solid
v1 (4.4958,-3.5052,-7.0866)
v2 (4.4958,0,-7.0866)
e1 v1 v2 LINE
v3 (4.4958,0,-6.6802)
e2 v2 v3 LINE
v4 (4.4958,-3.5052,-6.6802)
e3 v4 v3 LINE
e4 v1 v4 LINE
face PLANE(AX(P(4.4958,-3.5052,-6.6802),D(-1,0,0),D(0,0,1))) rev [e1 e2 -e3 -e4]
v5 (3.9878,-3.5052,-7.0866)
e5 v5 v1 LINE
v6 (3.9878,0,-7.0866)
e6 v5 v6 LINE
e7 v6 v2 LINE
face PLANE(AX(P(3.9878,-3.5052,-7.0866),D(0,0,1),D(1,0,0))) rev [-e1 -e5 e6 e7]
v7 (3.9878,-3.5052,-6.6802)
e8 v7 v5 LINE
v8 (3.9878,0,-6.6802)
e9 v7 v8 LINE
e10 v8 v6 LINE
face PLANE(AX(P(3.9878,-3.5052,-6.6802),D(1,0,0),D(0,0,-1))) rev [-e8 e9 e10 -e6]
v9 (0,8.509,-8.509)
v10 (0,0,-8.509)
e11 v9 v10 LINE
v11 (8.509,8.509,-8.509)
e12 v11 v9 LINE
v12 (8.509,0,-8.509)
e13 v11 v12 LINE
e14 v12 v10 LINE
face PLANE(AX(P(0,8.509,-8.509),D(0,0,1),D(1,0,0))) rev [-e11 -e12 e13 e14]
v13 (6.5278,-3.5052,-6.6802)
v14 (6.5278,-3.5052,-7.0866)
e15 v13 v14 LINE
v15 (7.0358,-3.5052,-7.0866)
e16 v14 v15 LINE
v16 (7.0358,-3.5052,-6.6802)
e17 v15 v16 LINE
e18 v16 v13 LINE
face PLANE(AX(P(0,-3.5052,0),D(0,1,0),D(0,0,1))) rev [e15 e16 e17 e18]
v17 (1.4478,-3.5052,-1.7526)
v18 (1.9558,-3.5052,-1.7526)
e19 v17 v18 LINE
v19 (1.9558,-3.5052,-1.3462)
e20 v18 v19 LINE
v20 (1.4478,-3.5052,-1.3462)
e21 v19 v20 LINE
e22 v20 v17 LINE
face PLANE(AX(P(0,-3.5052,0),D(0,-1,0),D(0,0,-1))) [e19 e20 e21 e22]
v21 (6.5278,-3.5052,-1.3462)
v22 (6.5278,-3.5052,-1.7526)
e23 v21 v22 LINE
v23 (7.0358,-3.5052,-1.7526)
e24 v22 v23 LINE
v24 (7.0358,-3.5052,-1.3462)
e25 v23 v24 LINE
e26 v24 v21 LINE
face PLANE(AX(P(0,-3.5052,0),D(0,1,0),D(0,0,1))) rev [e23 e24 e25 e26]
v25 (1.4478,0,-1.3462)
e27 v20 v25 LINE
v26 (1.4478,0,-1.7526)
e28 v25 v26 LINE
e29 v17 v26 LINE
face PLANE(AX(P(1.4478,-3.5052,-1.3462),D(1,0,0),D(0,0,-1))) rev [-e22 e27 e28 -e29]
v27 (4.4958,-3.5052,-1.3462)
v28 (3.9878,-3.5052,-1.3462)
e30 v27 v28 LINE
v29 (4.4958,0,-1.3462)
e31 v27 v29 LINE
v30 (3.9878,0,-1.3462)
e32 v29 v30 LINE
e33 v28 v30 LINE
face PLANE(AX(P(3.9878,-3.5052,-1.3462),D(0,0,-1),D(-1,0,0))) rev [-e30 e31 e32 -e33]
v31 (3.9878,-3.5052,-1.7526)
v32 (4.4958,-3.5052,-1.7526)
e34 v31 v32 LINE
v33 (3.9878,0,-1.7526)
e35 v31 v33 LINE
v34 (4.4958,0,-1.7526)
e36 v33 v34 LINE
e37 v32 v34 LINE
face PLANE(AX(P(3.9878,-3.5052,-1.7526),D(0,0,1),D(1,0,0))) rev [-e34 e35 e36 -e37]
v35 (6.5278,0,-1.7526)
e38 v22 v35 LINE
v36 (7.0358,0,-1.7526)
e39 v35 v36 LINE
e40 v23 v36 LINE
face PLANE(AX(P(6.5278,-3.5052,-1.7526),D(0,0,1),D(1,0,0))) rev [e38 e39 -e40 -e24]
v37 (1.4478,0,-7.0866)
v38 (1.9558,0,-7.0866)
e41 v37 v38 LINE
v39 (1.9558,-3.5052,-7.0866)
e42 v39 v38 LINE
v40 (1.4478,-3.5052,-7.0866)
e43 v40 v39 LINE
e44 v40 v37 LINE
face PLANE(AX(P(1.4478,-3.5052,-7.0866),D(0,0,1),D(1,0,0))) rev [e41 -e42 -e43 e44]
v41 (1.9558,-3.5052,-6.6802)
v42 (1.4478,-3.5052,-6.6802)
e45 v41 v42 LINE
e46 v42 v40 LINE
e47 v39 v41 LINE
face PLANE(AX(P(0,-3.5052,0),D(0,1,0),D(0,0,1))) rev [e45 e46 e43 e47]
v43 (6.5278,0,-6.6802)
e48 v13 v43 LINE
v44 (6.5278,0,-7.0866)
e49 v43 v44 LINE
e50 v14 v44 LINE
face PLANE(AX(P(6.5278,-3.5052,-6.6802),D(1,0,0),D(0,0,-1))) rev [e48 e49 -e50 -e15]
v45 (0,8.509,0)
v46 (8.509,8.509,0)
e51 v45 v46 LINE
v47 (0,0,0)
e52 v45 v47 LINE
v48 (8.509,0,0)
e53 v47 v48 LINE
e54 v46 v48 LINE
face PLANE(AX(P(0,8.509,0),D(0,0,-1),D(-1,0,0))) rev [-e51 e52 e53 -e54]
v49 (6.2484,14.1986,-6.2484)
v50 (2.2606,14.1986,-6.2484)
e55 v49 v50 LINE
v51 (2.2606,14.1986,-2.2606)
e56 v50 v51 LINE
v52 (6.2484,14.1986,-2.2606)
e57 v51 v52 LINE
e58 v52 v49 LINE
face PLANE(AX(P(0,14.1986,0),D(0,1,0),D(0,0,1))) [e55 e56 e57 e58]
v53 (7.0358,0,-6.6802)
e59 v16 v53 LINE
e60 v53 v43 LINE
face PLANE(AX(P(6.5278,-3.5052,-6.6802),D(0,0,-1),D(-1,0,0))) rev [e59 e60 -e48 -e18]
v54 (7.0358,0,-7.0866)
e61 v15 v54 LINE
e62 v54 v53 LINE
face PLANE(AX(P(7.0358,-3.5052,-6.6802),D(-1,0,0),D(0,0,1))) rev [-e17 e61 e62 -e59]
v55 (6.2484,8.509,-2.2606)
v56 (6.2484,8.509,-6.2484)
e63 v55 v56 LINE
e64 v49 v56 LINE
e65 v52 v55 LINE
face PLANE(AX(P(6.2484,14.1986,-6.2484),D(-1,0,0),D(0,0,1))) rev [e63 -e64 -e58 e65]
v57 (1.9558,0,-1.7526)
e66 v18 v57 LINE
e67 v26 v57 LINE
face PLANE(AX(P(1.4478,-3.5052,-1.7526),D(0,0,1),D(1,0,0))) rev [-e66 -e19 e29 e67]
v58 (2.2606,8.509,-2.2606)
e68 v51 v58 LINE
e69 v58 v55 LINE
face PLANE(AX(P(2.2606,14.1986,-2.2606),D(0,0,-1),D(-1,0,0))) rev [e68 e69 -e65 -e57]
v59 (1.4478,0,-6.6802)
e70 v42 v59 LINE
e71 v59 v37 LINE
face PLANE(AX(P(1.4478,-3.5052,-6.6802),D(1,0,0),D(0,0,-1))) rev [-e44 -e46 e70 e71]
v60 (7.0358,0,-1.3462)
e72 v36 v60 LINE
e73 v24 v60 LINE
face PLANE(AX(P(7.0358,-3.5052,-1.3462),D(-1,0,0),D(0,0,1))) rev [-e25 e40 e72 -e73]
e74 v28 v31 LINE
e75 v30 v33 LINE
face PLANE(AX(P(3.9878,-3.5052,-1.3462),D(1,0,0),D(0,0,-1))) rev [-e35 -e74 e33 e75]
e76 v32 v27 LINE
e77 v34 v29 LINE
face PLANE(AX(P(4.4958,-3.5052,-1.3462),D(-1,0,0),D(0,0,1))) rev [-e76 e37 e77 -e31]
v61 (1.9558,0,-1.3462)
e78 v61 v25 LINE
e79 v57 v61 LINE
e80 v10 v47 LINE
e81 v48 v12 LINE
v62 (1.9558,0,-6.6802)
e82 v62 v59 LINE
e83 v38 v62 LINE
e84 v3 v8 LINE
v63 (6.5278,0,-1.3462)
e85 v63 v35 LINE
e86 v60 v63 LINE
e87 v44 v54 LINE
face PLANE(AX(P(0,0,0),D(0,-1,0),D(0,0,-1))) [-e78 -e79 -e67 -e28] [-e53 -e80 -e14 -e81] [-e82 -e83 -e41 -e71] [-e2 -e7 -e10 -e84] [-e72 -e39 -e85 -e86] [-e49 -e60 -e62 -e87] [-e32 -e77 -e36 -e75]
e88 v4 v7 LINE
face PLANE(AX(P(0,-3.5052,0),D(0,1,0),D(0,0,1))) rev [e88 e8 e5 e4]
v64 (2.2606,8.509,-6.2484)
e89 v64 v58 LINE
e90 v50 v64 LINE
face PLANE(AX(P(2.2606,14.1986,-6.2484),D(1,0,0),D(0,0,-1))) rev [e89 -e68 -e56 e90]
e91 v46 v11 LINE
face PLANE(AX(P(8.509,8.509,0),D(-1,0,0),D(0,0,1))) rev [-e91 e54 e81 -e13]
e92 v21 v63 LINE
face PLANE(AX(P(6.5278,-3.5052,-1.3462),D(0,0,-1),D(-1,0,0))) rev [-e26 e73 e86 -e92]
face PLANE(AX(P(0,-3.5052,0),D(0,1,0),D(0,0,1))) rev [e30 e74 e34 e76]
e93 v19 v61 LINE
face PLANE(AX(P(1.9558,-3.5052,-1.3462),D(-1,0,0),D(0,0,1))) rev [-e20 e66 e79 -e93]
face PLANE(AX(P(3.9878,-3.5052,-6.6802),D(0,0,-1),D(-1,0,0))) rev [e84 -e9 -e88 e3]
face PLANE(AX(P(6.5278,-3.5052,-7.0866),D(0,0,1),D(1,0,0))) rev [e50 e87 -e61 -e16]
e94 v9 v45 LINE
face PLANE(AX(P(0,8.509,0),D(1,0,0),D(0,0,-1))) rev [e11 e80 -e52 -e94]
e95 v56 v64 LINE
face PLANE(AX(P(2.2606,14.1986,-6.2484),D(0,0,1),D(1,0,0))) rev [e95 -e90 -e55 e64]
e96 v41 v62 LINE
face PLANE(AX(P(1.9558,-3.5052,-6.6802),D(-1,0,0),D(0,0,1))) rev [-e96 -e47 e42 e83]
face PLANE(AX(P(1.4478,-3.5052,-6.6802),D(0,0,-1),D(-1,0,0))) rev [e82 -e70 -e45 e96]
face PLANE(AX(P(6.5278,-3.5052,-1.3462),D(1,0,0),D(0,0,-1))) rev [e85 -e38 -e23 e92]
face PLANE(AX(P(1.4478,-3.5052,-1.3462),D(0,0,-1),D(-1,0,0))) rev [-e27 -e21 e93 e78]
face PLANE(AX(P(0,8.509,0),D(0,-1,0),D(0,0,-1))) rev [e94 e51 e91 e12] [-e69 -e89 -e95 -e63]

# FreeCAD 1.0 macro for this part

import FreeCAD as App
import Part
import Sketcher
Q = App.Units.Quantity

doc = App.newDocument("Part")
body = doc.addObject("PartDesign::Body", "Body")

sketch1 = body.newObject("Sketcher::SketchObject", "Sketch")
sketch1.AttachmentSupport = (doc.getObject("XZ_Plane"), [""])
sketch1.MapMode = "FlatFace"
sketch1.addGeometry(Part.LineSegment(App.Vector(0, -9, 0), App.Vector(0, 0, 0)), False)
sketch1.addGeometry(Part.LineSegment(App.Vector(0, 0, 0), App.Vector(9, 0, 0)), False)
sketch1.addGeometry(Part.LineSegment(App.Vector(9, 0, 0), App.Vector(9, -9, 0)), False)
sketch1.addGeometry(Part.LineSegment(App.Vector(9, -9, 0), App.Vector(0, -9, 0)), False)
sketch1.addConstraint(Sketcher.Constraint("Coincident", 0, 2, 1, 1))
sketch1.addConstraint(Sketcher.Constraint("Coincident", 1, 2, 2, 1))
sketch1.addConstraint(Sketcher.Constraint("Coincident", 2, 2, 3, 1))
sketch1.addConstraint(Sketcher.Constraint("Coincident", 3, 2, 0, 1))
sketch1.addConstraint(Sketcher.Constraint("Vertical", 0))
sketch1.addConstraint(Sketcher.Constraint("Horizontal", 1))
sketch1.addConstraint(Sketcher.Constraint("Vertical", 2))
sketch1.addConstraint(Sketcher.Constraint("Horizontal", 3))
sketch1.addConstraint(Sketcher.Constraint("Coincident", 0, 2, -1, 1))
sketch1.addConstraint(Sketcher.Constraint("Equal", 3, 0))
sketch1.addConstraint(Sketcher.Constraint("DistanceX", 1, 1, 1, 2, Q("0.335 in")))
pad1 = body.newObject("PartDesign::Pad", "Pad")
pad1.Profile = sketch1
pad1.Length = Q("0.335 in")
pad1.Reversed = True

sketch2 = body.newObject("Sketcher::SketchObject", "Sketch001")
sketch2.AttachmentSupport = (doc.getObject("XZ_Plane"), [""])
sketch2.MapMode = "FlatFace"
sketch2.AttachmentOffset = App.Placement(App.Vector(0, 0, -0.335 * 25.4), App.Rotation())
sketch2.addGeometry(Part.LineSegment(App.Vector(2.3, -6.2, 0), App.Vector(2.3, -2.3, 0)), False)
sketch2.addGeometry(Part.LineSegment(App.Vector(2.3, -2.3, 0), App.Vector(6.2, -2.3, 0)), False)
sketch2.addGeometry(Part.LineSegment(App.Vector(6.2, -2.3, 0), App.Vector(6.2, -6.2, 0)), False)
sketch2.addGeometry(Part.LineSegment(App.Vector(6.2, -6.2, 0), App.Vector(2.3, -6.2, 0)), False)
sketch2.addConstraint(Sketcher.Constraint("Coincident", 0, 2, 1, 1))
sketch2.addConstraint(Sketcher.Constraint("Coincident", 1, 2, 2, 1))
sketch2.addConstraint(Sketcher.Constraint("Coincident", 2, 2, 3, 1))
sketch2.addConstraint(Sketcher.Constraint("Coincident", 3, 2, 0, 1))
sketch2.addConstraint(Sketcher.Constraint("Vertical", 0))
sketch2.addConstraint(Sketcher.Constraint("Horizontal", 1))
sketch2.addConstraint(Sketcher.Constraint("Vertical", 2))
sketch2.addConstraint(Sketcher.Constraint("Horizontal", 3))
sketch2.addConstraint(Sketcher.Constraint("Equal", 3, 0))
sketch2.addConstraint(Sketcher.Constraint("DistanceX", 1, 1, 1, 2, Q("0.157 in")))
sketch2.addConstraint(Sketcher.Constraint("DistanceX", -1, 1, 0, 2, Q("0.089 in")))
sketch2.addConstraint(Sketcher.Constraint("DistanceY", 0, 2, -1, 1, Q("0.089 in")))
pad2 = body.newObject("PartDesign::Pad", "Pad001")
pad2.Profile = sketch2
pad2.Length = Q("0.224 in")
pad2.Reversed = True

sketch3 = body.newObject("Sketcher::SketchObject", "Sketch002")
sketch3.AttachmentSupport = (doc.getObject("XZ_Plane"), [""])
sketch3.MapMode = "FlatFace"
sketch3.addGeometry(Part.LineSegment(App.Vector(1.45, -1.35, 0), App.Vector(1.45, -1.75, 0)), False)
sketch3.addGeometry(Part.LineSegment(App.Vector(1.45, -1.75, 0), App.Vector(1.96, -1.75, 0)), False)
sketch3.addGeometry(Part.LineSegment(App.Vector(1.96, -1.75, 0), App.Vector(1.96, -1.35, 0)), False)
sketch3.addGeometry(Part.LineSegment(App.Vector(1.96, -1.35, 0), App.Vector(1.45, -1.35, 0)), False)
sketch3.addGeometry(Part.LineSegment(App.Vector(1.45, -6.68, 0), App.Vector(1.45, -7.09, 0)), False)
sketch3.addGeometry(Part.LineSegment(App.Vector(1.45, -7.09, 0), App.Vector(1.96, -7.09, 0)), False)
sketch3.addGeometry(Part.LineSegment(App.Vector(1.96, -7.09, 0), App.Vector(1.96, -6.68, 0)), False)
sketch3.addGeometry(Part.LineSegment(App.Vector(1.96, -6.68, 0), App.Vector(1.45, -6.68, 0)), False)
sketch3.addGeometry(Part.LineSegment(App.Vector(3.99, -6.68, 0), App.Vector(3.99, -7.09, 0)), False)
sketch3.addGeometry(Part.LineSegment(App.Vector(3.99, -7.09, 0), App.Vector(4.5, -7.09, 0)), False)
sketch3.addGeometry(Part.LineSegment(App.Vector(4.5, -7.09, 0), App.Vector(4.5, -6.68, 0)), False)
sketch3.addGeometry(Part.LineSegment(App.Vector(4.5, -6.68, 0), App.Vector(3.99, -6.68, 0)), False)
sketch3.addGeometry(Part.LineSegment(App.Vector(6.53, -6.68, 0), App.Vector(6.53, -7.09, 0)), False)
sketch3.addGeometry(Part.LineSegment(App.Vector(6.53, -7.09, 0), App.Vector(7.04, -7.09, 0)), False)
sketch3.addGeometry(Part.LineSegment(App.Vector(7.04, -7.09, 0), App.Vector(7.04, -6.68, 0)), False)
sketch3.addGeometry(Part.LineSegment(App.Vector(7.04, -6.68, 0), App.Vector(6.53, -6.68, 0)), False)
sketch3.addGeometry(Part.LineSegment(App.Vector(3.99, -1.35, 0), App.Vector(3.99, -1.75, 0)), False)
sketch3.addGeometry(Part.LineSegment(App.Vector(3.99, -1.75, 0), App.Vector(4.5, -1.75, 0)), False)
sketch3.addGeometry(Part.LineSegment(App.Vector(4.5, -1.75, 0), App.Vector(4.5, -1.35, 0)), False)
sketch3.addGeometry(Part.LineSegment(App.Vector(4.5, -1.35, 0), App.Vector(3.99, -1.35, 0)), False)
sketch3.addGeometry(Part.LineSegment(App.Vector(6.53, -1.35, 0), App.Vector(6.53, -1.75, 0)), False)
sketch3.addGeometry(Part.LineSegment(App.Vector(6.53, -1.75, 0), App.Vector(7.04, -1.75, 0)), False)
sketch3.addGeometry(Part.LineSegment(App.Vector(7.04, -1.75, 0), App.Vector(7.04, -1.35, 0)), False)
sketch3.addGeometry(Part.LineSegment(App.Vector(7.04, -1.35, 0), App.Vector(6.53, -1.35, 0)), False)
sketch3.addConstraint(Sketcher.Constraint("Coincident", 0, 2, 1, 1))
sketch3.addConstraint(Sketcher.Constraint("Coincident", 1, 2, 2, 1))
sketch3.addConstraint(Sketcher.Constraint("Coincident", 2, 2, 3, 1))
sketch3.addConstraint(Sketcher.Constraint("Coincident", 3, 2, 0, 1))
sketch3.addConstraint(Sketcher.Constraint("Coincident", 4, 2, 5, 1))
sketch3.addConstraint(Sketcher.Constraint("Coincident", 5, 2, 6, 1))
sketch3.addConstraint(Sketcher.Constraint("Coincident", 6, 2, 7, 1))
sketch3.addConstraint(Sketcher.Constraint("Coincident", 7, 2, 4, 1))
sketch3.addConstraint(Sketcher.Constraint("Coincident", 8, 2, 9, 1))
sketch3.addConstraint(Sketcher.Constraint("Coincident", 9, 2, 10, 1))
sketch3.addConstraint(Sketcher.Constraint("Coincident", 10, 2, 11, 1))
sketch3.addConstraint(Sketcher.Constraint("Coincident", 11, 2, 8, 1))
sketch3.addConstraint(Sketcher.Constraint("Coincident", 12, 2, 13, 1))
sketch3.addConstraint(Sketcher.Constraint("Coincident", 13, 2, 14, 1))
sketch3.addConstraint(Sketcher.Constraint("Coincident", 14, 2, 15, 1))
sketch3.addConstraint(Sketcher.Constraint("Coincident", 15, 2, 12, 1))
sketch3.addConstraint(Sketcher.Constraint("Coincident", 16, 2, 17, 1))
sketch3.addConstraint(Sketcher.Constraint("Coincident", 17, 2, 18, 1))
sketch3.addConstraint(Sketcher.Constraint("Coincident", 18, 2, 19, 1))
sketch3.addConstraint(Sketcher.Constraint("Coincident", 19, 2, 16, 1))
sketch3.addConstraint(Sketcher.Constraint("Coincident", 20, 2, 21, 1))
sketch3.addConstraint(Sketcher.Constraint("Coincident", 21, 2, 22, 1))
sketch3.addConstraint(Sketcher.Constraint("Coincident", 22, 2, 23, 1))
sketch3.addConstraint(Sketcher.Constraint("Coincident", 23, 2, 20, 1))
sketch3.addConstraint(Sketcher.Constraint("Vertical", 0))
sketch3.addConstraint(Sketcher.Constraint("Horizontal", 1))
sketch3.addConstraint(Sketcher.Constraint("Vertical", 2))
sketch3.addConstraint(Sketcher.Constraint("Horizontal", 3))
sketch3.addConstraint(Sketcher.Constraint("Vertical", 4))
sketch3.addConstraint(Sketcher.Constraint("Horizontal", 5))
sketch3.addConstraint(Sketcher.Constraint("Vertical", 6))
sketch3.addConstraint(Sketcher.Constraint("Horizontal", 7))
sketch3.addConstraint(Sketcher.Constraint("Vertical", 8))
sketch3.addConstraint(Sketcher.Constraint("Horizontal", 9))
sketch3.addConstraint(Sketcher.Constraint("Vertical", 10))
sketch3.addConstraint(Sketcher.Constraint("Horizontal", 11))
sketch3.addConstraint(Sketcher.Constraint("Vertical", 12))
sketch3.addConstraint(Sketcher.Constraint("Horizontal", 13))
sketch3.addConstraint(Sketcher.Constraint("Vertical", 14))
sketch3.addConstraint(Sketcher.Constraint("Horizontal", 15))
sketch3.addConstraint(Sketcher.Constraint("Vertical", 16))
sketch3.addConstraint(Sketcher.Constraint("Horizontal", 17))
sketch3.addConstraint(Sketcher.Constraint("Vertical", 18))
sketch3.addConstraint(Sketcher.Constraint("Horizontal", 19))
sketch3.addConstraint(Sketcher.Constraint("Vertical", 20))
sketch3.addConstraint(Sketcher.Constraint("Horizontal", 21))
sketch3.addConstraint(Sketcher.Constraint("Vertical", 22))
sketch3.addConstraint(Sketcher.Constraint("Horizontal", 23))
sketch3.addConstraint(Sketcher.Constraint("Horizontal", 5, 2, 8, 2))
sketch3.addConstraint(Sketcher.Constraint("Horizontal", 7, 2, 10, 2))
sketch3.addConstraint(Sketcher.Constraint("Horizontal", 9, 2, 12, 2))
sketch3.addConstraint(Sketcher.Constraint("Horizontal", 11, 2, 14, 2))
sketch3.addConstraint(Sketcher.Constraint("Horizontal", 1, 2, 16, 2))
sketch3.addConstraint(Sketcher.Constraint("Horizontal", 3, 2, 18, 2))
sketch3.addConstraint(Sketcher.Constraint("Horizontal", 17, 2, 20, 2))
sketch3.addConstraint(Sketcher.Constraint("Horizontal", 19, 2, 22, 2))
sketch3.addConstraint(Sketcher.Constraint("Vertical", 3, 2, 4, 2))
sketch3.addConstraint(Sketcher.Constraint("Vertical", 2, 2, 5, 2))
sketch3.addConstraint(Sketcher.Constraint("Vertical", 11, 2, 16, 2))
sketch3.addConstraint(Sketcher.Constraint("Vertical", 10, 2, 17, 2))
sketch3.addConstraint(Sketcher.Constraint("Vertical", 15, 2, 20, 2))
sketch3.addConstraint(Sketcher.Constraint("Vertical", 14, 2, 21, 2))
sketch3.addConstraint(Sketcher.Constraint("Equal", 7, 9))
sketch3.addConstraint(Sketcher.Constraint("Equal", 11, 13))
sketch3.addConstraint(Sketcher.Constraint("Equal", 2, 4))
sketch3.addConstraint(Sketcher.Constraint("DistanceX", 1, 1, 1, 2, Q("0.02 in")))
sketch3.addConstraint(Sketcher.Constraint("DistanceX", 4, 2, 8, 2, Q("0.1 in")))
sketch3.addConstraint(Sketcher.Constraint("DistanceX", 8, 2, 12, 2, Q("0.1 in")))
sketch3.addConstraint(Sketcher.Constraint("DistanceY", 0, 2, 0, 1, Q("0.016 in")))
sketch3.addConstraint(Sketcher.Constraint("DistanceY", 4, 2, 0, 2, Q("0.21 in")))
sketch3.addConstraint(Sketcher.Constraint("DistanceX", -1, 1, 0, 2, Q("0.057 in")))
sketch3.addConstraint(Sketcher.Constraint("DistanceY", 0, 2, -1, 1, Q("0.069 in")))
pad3 = body.newObject("PartDesign::Pad", "Pad002")
pad3.Profile = sketch3
pad3.Length = Q("0.138 in")

doc.recompute()
